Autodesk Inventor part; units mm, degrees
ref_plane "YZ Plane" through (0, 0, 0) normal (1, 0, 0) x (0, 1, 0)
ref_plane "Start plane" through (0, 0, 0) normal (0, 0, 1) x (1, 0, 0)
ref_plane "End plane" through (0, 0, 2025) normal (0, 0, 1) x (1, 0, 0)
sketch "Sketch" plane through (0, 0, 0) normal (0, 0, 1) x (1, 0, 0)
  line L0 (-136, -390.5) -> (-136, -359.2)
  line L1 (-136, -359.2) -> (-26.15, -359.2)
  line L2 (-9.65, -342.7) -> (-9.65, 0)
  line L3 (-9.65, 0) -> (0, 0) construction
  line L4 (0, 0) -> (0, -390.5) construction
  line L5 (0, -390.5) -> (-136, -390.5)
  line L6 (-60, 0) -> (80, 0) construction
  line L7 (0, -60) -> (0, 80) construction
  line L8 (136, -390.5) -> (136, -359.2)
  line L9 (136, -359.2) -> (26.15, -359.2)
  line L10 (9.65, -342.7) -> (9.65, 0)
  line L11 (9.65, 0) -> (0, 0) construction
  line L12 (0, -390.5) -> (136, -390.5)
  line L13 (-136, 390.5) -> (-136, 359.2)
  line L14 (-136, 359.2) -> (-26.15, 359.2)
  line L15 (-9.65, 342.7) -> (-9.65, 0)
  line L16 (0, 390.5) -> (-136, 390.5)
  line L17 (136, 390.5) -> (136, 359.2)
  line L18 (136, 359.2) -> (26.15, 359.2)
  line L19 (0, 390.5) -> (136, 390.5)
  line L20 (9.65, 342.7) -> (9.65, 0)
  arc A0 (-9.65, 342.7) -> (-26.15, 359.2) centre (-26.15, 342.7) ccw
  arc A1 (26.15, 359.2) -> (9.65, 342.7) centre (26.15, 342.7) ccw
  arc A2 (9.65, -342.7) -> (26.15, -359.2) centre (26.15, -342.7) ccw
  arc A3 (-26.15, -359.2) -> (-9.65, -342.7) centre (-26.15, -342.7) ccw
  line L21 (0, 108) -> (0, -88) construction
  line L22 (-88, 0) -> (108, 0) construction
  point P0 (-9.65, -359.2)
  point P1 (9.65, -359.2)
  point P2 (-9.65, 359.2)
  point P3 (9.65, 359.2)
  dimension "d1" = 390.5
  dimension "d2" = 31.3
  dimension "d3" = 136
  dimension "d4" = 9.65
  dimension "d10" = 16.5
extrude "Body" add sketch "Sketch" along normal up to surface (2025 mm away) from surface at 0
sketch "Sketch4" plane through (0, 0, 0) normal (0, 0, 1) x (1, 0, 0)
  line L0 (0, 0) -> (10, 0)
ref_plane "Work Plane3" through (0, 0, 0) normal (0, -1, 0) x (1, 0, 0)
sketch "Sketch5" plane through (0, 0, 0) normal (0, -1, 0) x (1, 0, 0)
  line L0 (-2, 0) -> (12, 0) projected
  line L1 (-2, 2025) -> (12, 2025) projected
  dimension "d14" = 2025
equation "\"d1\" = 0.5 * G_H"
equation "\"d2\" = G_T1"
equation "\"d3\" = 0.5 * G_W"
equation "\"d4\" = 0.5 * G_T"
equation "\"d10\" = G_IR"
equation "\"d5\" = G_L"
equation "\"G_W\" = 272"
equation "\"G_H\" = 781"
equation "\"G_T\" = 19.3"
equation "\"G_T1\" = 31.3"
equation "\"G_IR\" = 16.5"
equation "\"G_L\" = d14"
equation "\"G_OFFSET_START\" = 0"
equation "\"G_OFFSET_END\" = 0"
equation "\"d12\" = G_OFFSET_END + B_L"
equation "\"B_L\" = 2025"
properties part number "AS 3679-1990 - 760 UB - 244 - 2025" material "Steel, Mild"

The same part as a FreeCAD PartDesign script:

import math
import FreeCAD as App
import Part
import Sketcher

doc = App.newDocument("Part")
body = doc.addObject("PartDesign::Body", "Body")

# Sketch on XY plane
sketch1 = body.newObject("Sketcher::SketchObject", "Sketch")
sketch1.AttachmentSupport = (doc.getObject("XY_Plane"), [""])
sketch1.MapMode = "FlatFace"
sketch1.addGeometry([
    Part.LineSegment(App.Vector(-136, -359, 0), App.Vector(-136, -390, 0)),  # 0
    Part.LineSegment(App.Vector(-136, -390, 0), App.Vector(136, -390, 0)),  # 1
    Part.LineSegment(App.Vector(136, -390, 0), App.Vector(136, -359, 0)),  # 2
    Part.LineSegment(App.Vector(136, -359, 0), App.Vector(26, -359, 0)),  # 3
    Part.ArcOfCircle(Part.Circle(App.Vector(26, -343, 0), App.Vector(0, 0, 1), 16), math.radians(180), math.radians(270)),  # 4
    Part.LineSegment(App.Vector(10, -343, 0), App.Vector(10, 343, 0)),  # 5
    Part.ArcOfCircle(Part.Circle(App.Vector(26, 343, 0), App.Vector(0, 0, 1), 16), math.radians(90), math.radians(180)),  # 6
    Part.LineSegment(App.Vector(26, 359, 0), App.Vector(136, 359, 0)),  # 7
    Part.LineSegment(App.Vector(136, 359, 0), App.Vector(136, 390, 0)),  # 8
    Part.LineSegment(App.Vector(136, 390, 0), App.Vector(-136, 390, 0)),  # 9
    Part.LineSegment(App.Vector(-136, 390, 0), App.Vector(-136, 359, 0)),  # 10
    Part.LineSegment(App.Vector(-136, 359, 0), App.Vector(-26, 359, 0)),  # 11
    Part.ArcOfCircle(Part.Circle(App.Vector(-26, 343, 0), App.Vector(0, 0, 1), 16), math.radians(0), math.radians(90)),  # 12
    Part.LineSegment(App.Vector(-10, 343, 0), App.Vector(-10, -343, 0)),  # 13
    Part.ArcOfCircle(Part.Circle(App.Vector(-26, -343, 0), App.Vector(0, 0, 1), 16), math.radians(-90), math.radians(0)),  # 14
    Part.LineSegment(App.Vector(-26, -359, 0), App.Vector(-136, -359, 0)),  # 15
], False)
sketch1.addConstraint([
    Sketcher.Constraint("Coincident", 0, 2, 1, 1),
    Sketcher.Constraint("Coincident", 1, 2, 2, 1),
    Sketcher.Constraint("Coincident", 2, 2, 3, 1),
    Sketcher.Constraint("Tangent", 3, 2, 4, 2),
    Sketcher.Constraint("Tangent", 4, 1, 5, 1),
    Sketcher.Constraint("Tangent", 5, 2, 6, 2),
    Sketcher.Constraint("Tangent", 6, 1, 7, 1),
    Sketcher.Constraint("Coincident", 7, 2, 8, 1),
    Sketcher.Constraint("Coincident", 8, 2, 9, 1),
    Sketcher.Constraint("Coincident", 9, 2, 10, 1),
    Sketcher.Constraint("Coincident", 10, 2, 11, 1),
    Sketcher.Constraint("Tangent", 11, 2, 12, 2),
    Sketcher.Constraint("Tangent", 12, 1, 13, 1),
    Sketcher.Constraint("Tangent", 13, 2, 14, 2),
    Sketcher.Constraint("Tangent", 14, 1, 15, 1),
    Sketcher.Constraint("Coincident", 15, 2, 0, 1),
    Sketcher.Constraint("Vertical", 0),
    Sketcher.Constraint("Horizontal", 1),
    Sketcher.Constraint("Vertical", 2),
    Sketcher.Constraint("Horizontal", 3),
    Sketcher.Constraint("Vertical", 5),
    Sketcher.Constraint("Horizontal", 7),
    Sketcher.Constraint("Vertical", 8),
    Sketcher.Constraint("Horizontal", 9),
    Sketcher.Constraint("Vertical", 10),
    Sketcher.Constraint("Horizontal", 11),
    Sketcher.Constraint("Vertical", 13),
    Sketcher.Constraint("Horizontal", 15),
    Sketcher.Constraint("Equal", 4, 6),
    Sketcher.Constraint("Equal", 6, 12),
    Sketcher.Constraint("Equal", 12, 14),
    Sketcher.Constraint("Symmetric", 4, 3, 12, 3, -1, 1),
    Sketcher.Constraint("Symmetric", 0, 2, 8, 2, -1, 1),
    Sketcher.Constraint("Symmetric", 7, 2, 10, 2, -2),
    Sketcher.Constraint("Symmetric", 2, 2, 15, 2, -2),
    Sketcher.Constraint("Radius", 4, 16.5),
    Sketcher.Constraint("DistanceY", 0, 2, 0, 1, 31.3),
    Sketcher.Constraint("DistanceX", 0, 2, -1, 1, 136.0),
    Sketcher.Constraint("DistanceY", 0, 2, -1, 1, 390.5),
    Sketcher.Constraint("DistanceX", -1, 1, 4, 1, 9.65),
])
pad1 = body.newObject("PartDesign::Pad", "Pad")
pad1.Profile = sketch1
pad1.Length = 2025

doc.recompute()
